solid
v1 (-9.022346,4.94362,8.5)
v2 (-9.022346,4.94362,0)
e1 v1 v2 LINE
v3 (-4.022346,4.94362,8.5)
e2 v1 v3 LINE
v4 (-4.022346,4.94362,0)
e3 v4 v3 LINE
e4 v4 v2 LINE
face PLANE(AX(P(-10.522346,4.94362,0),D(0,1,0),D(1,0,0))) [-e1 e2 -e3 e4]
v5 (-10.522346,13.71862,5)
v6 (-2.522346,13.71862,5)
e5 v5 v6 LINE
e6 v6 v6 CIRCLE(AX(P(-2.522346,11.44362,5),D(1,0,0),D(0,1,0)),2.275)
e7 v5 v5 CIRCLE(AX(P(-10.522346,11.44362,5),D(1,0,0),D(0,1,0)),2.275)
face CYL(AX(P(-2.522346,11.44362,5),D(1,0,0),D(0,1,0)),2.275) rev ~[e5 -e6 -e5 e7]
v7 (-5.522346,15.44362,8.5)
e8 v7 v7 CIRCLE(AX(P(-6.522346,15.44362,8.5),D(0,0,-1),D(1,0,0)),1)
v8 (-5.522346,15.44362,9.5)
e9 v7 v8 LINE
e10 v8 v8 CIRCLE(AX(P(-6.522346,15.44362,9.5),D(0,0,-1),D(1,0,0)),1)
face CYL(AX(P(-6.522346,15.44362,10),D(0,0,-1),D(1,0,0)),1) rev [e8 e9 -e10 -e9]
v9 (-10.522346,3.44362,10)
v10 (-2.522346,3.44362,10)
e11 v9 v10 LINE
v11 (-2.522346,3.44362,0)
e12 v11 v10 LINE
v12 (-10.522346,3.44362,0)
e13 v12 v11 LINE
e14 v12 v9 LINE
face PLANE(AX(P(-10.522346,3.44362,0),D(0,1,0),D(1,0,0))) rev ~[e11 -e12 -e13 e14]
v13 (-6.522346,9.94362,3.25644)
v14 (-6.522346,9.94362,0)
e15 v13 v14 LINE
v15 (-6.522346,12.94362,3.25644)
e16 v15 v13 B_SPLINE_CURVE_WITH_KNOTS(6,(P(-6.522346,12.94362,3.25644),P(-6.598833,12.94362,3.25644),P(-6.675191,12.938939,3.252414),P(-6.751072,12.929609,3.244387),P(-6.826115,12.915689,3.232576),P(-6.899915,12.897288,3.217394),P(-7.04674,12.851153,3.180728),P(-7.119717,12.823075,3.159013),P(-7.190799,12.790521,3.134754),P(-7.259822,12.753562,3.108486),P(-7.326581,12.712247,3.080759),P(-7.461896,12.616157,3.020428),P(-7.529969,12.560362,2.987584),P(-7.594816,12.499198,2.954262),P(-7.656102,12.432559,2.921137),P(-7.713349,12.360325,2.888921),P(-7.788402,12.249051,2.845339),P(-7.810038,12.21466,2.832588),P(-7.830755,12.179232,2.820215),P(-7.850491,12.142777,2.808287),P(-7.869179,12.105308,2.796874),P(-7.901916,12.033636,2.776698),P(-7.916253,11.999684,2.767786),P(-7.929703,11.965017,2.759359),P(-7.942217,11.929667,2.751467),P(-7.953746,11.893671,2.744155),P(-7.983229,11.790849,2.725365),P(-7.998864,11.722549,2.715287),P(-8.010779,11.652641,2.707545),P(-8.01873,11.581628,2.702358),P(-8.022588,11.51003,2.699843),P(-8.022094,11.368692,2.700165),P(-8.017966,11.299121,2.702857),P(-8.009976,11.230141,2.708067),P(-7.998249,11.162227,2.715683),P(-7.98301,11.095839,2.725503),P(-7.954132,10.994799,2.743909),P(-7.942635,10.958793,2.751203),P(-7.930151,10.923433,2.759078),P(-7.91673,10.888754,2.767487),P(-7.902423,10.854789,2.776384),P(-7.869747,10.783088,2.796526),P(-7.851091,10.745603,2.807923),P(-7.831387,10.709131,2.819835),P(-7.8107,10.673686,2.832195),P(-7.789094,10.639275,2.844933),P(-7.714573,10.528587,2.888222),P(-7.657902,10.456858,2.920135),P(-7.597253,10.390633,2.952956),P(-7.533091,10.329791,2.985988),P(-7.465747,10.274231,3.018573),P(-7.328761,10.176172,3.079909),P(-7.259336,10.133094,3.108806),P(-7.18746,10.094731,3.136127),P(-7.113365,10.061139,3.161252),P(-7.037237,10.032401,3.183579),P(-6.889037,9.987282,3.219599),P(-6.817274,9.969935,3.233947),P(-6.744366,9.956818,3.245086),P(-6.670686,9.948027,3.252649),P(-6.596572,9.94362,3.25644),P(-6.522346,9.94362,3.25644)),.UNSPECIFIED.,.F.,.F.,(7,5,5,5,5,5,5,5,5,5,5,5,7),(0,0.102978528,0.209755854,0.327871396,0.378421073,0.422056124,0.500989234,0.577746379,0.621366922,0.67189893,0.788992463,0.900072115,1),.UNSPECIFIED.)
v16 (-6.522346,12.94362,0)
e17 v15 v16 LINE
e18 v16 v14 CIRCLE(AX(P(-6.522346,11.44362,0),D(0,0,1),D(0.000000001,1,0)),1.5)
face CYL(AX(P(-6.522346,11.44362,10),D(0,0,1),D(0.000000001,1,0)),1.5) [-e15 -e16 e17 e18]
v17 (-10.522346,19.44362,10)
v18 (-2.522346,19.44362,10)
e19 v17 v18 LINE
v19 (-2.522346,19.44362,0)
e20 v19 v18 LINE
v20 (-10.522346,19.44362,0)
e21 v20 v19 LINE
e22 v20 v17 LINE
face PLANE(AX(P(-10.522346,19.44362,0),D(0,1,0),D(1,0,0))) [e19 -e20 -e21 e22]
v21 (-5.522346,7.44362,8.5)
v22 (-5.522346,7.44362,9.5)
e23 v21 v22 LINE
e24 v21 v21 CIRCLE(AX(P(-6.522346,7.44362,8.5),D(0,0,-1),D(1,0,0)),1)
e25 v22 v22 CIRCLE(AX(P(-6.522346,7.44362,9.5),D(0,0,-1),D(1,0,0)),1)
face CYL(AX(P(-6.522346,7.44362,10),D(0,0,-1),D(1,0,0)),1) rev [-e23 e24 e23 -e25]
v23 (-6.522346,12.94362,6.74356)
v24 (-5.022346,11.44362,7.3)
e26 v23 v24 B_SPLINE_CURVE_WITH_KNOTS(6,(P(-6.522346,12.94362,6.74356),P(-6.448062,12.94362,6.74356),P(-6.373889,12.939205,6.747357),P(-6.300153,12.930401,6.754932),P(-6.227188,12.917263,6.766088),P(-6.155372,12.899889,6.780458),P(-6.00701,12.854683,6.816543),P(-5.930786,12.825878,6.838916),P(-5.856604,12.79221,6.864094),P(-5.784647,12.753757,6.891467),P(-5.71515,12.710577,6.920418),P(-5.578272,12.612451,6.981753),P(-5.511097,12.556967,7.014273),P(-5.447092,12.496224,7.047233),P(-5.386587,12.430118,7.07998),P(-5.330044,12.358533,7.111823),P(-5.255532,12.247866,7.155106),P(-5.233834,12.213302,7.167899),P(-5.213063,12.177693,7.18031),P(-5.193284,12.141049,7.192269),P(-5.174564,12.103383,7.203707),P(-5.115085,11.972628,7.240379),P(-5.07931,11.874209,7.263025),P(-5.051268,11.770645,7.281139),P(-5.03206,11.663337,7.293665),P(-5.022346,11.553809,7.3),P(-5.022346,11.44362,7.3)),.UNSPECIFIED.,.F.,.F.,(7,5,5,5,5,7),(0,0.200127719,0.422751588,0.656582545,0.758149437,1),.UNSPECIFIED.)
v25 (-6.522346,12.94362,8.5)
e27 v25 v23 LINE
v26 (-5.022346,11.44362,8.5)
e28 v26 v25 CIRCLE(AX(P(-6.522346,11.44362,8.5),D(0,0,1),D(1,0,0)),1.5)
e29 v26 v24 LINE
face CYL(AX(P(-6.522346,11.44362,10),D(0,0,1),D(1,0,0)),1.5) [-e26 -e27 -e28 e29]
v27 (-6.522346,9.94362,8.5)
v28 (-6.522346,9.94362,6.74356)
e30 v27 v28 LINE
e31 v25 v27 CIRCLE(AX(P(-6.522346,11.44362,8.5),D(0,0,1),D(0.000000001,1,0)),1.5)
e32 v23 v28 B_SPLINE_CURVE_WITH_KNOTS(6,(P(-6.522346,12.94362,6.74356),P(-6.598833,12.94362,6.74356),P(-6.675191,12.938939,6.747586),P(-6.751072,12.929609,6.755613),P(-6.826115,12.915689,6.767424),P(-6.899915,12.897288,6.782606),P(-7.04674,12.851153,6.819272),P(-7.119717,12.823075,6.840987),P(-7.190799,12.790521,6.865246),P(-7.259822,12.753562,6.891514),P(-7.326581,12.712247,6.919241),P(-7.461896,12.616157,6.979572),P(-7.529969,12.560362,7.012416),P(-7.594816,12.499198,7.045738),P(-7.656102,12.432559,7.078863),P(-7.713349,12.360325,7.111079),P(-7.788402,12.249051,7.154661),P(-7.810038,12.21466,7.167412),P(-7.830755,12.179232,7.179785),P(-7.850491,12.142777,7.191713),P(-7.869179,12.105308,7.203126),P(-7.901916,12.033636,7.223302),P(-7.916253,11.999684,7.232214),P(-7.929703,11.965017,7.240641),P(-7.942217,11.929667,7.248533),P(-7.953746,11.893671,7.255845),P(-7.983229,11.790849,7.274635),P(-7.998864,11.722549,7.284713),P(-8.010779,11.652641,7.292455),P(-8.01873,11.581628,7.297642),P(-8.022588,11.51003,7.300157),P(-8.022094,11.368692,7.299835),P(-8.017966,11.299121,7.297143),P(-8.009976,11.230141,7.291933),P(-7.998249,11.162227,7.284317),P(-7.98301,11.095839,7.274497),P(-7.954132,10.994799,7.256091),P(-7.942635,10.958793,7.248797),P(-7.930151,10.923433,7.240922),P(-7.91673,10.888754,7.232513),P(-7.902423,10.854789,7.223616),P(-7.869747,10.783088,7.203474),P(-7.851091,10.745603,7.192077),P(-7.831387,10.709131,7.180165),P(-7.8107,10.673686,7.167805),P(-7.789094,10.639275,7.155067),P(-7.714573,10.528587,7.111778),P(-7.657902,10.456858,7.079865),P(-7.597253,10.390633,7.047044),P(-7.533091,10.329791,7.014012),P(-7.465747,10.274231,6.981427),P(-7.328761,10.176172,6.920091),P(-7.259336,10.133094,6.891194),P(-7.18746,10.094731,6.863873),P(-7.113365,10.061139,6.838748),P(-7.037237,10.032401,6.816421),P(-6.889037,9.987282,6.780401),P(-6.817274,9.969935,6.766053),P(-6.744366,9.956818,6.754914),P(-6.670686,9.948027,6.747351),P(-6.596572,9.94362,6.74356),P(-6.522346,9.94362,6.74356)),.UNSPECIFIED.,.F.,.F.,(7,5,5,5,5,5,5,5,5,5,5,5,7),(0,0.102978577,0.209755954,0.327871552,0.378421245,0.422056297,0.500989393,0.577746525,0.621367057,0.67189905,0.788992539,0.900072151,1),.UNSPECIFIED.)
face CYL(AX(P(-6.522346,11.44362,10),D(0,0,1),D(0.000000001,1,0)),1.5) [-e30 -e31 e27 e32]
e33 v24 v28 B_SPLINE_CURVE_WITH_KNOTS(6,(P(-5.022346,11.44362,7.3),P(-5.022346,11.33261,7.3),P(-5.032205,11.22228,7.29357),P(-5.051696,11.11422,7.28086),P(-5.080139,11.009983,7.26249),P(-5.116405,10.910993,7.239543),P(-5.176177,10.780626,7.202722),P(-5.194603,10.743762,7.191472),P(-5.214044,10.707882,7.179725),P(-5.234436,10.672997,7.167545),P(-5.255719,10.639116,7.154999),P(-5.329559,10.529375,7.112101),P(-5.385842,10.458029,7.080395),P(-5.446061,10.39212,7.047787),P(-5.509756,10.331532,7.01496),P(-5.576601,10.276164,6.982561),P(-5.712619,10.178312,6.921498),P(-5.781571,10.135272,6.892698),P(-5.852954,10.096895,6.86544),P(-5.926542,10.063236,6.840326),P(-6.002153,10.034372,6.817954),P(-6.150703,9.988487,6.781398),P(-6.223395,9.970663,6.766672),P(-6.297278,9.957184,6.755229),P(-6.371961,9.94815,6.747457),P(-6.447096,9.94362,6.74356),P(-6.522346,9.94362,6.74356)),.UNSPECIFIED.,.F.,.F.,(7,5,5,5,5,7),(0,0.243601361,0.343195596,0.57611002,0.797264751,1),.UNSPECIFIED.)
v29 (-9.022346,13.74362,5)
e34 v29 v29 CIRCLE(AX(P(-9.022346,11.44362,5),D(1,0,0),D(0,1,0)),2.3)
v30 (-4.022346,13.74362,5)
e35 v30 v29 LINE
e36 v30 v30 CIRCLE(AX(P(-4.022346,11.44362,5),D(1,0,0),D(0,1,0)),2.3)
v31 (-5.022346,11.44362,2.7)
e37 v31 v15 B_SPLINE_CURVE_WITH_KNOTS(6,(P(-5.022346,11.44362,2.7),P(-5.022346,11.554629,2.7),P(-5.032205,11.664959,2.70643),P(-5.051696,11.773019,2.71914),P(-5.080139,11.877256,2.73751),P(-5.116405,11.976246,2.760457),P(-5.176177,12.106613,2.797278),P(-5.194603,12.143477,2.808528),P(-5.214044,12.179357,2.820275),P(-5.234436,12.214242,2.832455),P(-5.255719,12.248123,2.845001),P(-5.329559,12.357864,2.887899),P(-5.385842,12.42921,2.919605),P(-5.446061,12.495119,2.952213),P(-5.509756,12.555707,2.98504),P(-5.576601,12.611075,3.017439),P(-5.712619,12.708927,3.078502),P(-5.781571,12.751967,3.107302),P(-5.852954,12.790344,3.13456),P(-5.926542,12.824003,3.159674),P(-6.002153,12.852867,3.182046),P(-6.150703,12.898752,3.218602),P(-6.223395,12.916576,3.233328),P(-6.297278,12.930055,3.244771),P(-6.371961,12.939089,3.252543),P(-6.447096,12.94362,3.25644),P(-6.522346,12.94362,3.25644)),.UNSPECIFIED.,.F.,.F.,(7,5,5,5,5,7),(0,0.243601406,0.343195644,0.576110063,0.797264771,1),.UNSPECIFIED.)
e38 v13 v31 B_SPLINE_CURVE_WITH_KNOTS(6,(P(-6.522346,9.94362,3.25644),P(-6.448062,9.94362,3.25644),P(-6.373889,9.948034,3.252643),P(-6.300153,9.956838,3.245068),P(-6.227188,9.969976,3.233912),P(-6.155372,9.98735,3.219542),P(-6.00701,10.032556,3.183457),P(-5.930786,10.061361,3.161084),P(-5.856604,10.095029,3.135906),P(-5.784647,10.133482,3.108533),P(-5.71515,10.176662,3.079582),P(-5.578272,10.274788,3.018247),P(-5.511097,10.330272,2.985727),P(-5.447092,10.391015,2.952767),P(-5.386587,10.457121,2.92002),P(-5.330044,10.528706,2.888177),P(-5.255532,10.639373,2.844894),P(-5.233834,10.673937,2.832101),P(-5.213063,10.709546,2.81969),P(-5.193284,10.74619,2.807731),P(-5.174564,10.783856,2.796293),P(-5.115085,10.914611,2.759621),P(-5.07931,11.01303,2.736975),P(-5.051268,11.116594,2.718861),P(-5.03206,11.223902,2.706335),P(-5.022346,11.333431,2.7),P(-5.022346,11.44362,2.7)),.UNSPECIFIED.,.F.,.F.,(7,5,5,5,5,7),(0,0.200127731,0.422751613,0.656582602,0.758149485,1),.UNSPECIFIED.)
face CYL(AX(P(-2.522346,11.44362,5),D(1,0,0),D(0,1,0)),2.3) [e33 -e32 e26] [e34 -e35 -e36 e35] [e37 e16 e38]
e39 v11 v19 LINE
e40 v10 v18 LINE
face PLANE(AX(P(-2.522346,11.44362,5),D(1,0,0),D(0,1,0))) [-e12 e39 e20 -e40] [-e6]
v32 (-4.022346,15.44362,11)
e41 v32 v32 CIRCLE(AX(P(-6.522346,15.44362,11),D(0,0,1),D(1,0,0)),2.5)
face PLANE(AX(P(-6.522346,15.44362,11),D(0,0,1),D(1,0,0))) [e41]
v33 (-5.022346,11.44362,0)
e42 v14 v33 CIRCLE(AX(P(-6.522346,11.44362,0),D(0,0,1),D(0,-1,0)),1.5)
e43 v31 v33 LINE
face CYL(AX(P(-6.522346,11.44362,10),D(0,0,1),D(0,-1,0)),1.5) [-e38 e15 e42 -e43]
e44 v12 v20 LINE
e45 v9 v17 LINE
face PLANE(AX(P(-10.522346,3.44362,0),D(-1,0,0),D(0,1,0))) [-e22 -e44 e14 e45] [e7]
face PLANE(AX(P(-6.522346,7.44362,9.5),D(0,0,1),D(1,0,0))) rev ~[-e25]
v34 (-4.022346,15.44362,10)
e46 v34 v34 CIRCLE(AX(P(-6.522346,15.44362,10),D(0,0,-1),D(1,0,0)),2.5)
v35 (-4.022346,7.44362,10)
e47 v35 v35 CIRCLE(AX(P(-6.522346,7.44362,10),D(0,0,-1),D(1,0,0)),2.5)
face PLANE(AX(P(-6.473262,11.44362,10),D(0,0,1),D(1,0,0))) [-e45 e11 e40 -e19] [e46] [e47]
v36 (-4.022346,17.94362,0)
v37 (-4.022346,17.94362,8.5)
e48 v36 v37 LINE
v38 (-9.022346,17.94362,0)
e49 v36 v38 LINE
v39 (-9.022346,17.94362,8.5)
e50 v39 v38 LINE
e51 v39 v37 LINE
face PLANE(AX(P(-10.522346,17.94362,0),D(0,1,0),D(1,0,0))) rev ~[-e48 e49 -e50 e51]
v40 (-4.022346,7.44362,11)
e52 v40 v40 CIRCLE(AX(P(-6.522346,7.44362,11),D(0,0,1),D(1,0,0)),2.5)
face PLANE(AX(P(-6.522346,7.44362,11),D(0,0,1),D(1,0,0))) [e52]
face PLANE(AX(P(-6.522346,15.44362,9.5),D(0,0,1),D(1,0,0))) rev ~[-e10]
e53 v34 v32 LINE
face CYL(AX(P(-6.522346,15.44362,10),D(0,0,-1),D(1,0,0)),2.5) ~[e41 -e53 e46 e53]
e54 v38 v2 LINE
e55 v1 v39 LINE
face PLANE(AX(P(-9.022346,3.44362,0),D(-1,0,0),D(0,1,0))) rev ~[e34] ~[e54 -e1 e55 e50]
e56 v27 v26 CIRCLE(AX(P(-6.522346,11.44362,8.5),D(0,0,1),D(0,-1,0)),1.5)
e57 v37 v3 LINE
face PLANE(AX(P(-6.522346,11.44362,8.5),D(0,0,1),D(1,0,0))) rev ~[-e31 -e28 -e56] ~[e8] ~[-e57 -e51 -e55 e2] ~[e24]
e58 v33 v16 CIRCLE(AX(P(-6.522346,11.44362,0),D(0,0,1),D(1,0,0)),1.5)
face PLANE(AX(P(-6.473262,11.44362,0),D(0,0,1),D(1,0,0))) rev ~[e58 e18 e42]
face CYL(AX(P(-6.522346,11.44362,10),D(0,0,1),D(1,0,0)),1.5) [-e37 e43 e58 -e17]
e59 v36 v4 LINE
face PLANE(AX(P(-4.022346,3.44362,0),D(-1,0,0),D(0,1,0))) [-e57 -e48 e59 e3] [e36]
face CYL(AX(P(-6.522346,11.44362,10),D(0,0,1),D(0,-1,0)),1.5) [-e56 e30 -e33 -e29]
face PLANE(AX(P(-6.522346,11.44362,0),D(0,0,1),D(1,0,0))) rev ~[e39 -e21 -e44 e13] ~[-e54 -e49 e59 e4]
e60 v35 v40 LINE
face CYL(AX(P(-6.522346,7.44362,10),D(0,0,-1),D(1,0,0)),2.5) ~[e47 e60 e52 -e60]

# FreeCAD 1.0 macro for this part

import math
import FreeCAD as App
import Part
import Sketcher

V = App.Vector
Q = App.Units.Quantity


def faces_at(feature, points):
    """Names of the faces that lie closest to the given points."""
    faces = feature.Shape.Faces
    near = lambda p: min(range(len(faces)), key=lambda i: faces[i].distToShape(Part.Vertex(*p))[0])
    return sorted({f"Face{near(p) + 1}" for p in points})


def add_polygon(sketch, points):
    """Adds a closed chain of lines whose ends are joined by coincident constraints."""
    first, n = sketch.GeometryCount, len(points)
    for a, b in zip(points, points[1:] + points[:1]):
        sketch.addGeometry(Part.LineSegment(App.Vector(*a, 0), App.Vector(*b, 0)), False)
    for i in range(n):
        sketch.addConstraint(Sketcher.Constraint("Coincident", first + i, 2, first + (i + 1) % n, 1))

doc = App.newDocument("Part")
body = doc.addObject("PartDesign::Body", "Body")

# Sketch on XY plane
sketch1 = doc.addObject("Sketcher::SketchObject", "Sketch")
body.addObject(sketch1)
sketch1.AttachmentSupport = (doc.XY_Plane, [""])
sketch1.MapMode = "FlatFace"
add_polygon(sketch1, [(-11, 19), (-11, 3), (-3, 3), (-3, 19)])  # lines 0-3
sketch1.addConstraint(Sketcher.Constraint("Vertical", 0))
sketch1.addConstraint(Sketcher.Constraint("Horizontal", 1))
sketch1.addConstraint(Sketcher.Constraint("Vertical", 2))
sketch1.addConstraint(Sketcher.Constraint("Horizontal", 3))
sketch1.addConstraint(Sketcher.Constraint("DistanceX", 1, 1, 1, 2, Q("8 mm")))
sketch1.addConstraint(Sketcher.Constraint("DistanceY", 0, 2, 0, 1, Q("16 mm")))
sketch1.addConstraint(Sketcher.Constraint("DistanceY", -1, 1, 0, 2, Q("3.44362 mm")))
sketch1.addConstraint(Sketcher.Constraint("DistanceX", 0, 2, -1, 1, Q("10.522346 mm")))
pad1 = doc.addObject("PartDesign::Pad", "Pad")
body.addObject(pad1)
pad1.Profile = sketch1
pad1.Length = 10

# Sketch on XY plane
sketch2 = doc.addObject("Sketcher::SketchObject", "Sketch001")
body.addObject(sketch2)
sketch2.AttachmentSupport = (doc.XY_Plane, [""])
sketch2.MapMode = "FlatFace"
sketch2.AttachmentOffset = App.Placement(V(0, 0, 10), App.Rotation())
sketch2.addGeometry(Part.Circle(V(-6.5, 7.4, 0), V(0, 0, 1), 2.5), False)
sketch2.addGeometry(Part.Circle(V(-6.5, 15.4, 0), V(0, 0, 1), 2.5), False)
sketch2.addConstraint(Sketcher.Constraint("Equal", 0, 1))
sketch2.addConstraint(Sketcher.Constraint("Vertical", 0, 3, 1, 3))
sketch2.addConstraint(Sketcher.Constraint("Diameter", 0, Q("5 mm")))
sketch2.addConstraint(Sketcher.Constraint("DistanceY", 0, 3, 1, 3, Q("8 mm")))
sketch2.addConstraint(Sketcher.Constraint("DistanceY", -1, 1, 0, 3, Q("7.44362 mm")))
sketch2.addConstraint(Sketcher.Constraint("DistanceX", 0, 3, -1, 1, Q("6.522346 mm")))
pad2 = doc.addObject("PartDesign::Pad", "Pad001")
body.addObject(pad2)
pad2.Profile = sketch2
pad2.Length = 1
doc.recompute()

thickness = doc.addObject("PartDesign::Thickness", "Thickness")
body.addObject(thickness)
thickness.Base = (pad2, faces_at(pad2, [(-6.522, 11.444, 0)]))
thickness.Value = 1.5
thickness.Reversed = True
thickness.Join = "Intersection"

# Sketch on XY plane
sketch3 = doc.addObject("Sketcher::SketchObject", "Sketch002")
body.addObject(sketch3)
sketch3.AttachmentSupport = (doc.XY_Plane, [""])
sketch3.MapMode = "FlatFace"
sketch3.AttachmentOffset = App.Placement(V(0, 0, 10), App.Rotation())
sketch3.addGeometry(Part.ArcOfCircle(Part.Circle(V(-6.5, 11.4, 0), V(0, 0, 1), 1.5), math.radians(-90), math.radians(0)), False)
sketch3.addGeometry(Part.ArcOfCircle(Part.Circle(V(-6.5, 11.4, 0), V(0, 0, 1), 1.5), math.radians(0), math.radians(90)), False)
sketch3.addGeometry(Part.ArcOfCircle(Part.Circle(V(-6.5, 11.4, 0), V(0, 0, 1), 1.5), math.radians(90), math.radians(270)), False)
sketch3.addConstraint(Sketcher.Constraint("Tangent", 0, 2, 1, 1))
sketch3.addConstraint(Sketcher.Constraint("Tangent", 1, 2, 2, 1))
sketch3.addConstraint(Sketcher.Constraint("Tangent", 2, 2, 0, 1))
sketch3.addConstraint(Sketcher.Constraint("Horizontal", 2, 3, 0, 2))
sketch3.addConstraint(Sketcher.Constraint("Vertical", 2, 3, 1, 2))
sketch3.addConstraint(Sketcher.Constraint("Vertical", 1, 2, 2, 2))
sketch3.addConstraint(Sketcher.Constraint("Radius", 0, Q("1.5 mm")))
sketch3.addConstraint(Sketcher.Constraint("DistanceY", -1, 1, 0, 3, Q("11.44362 mm")))
sketch3.addConstraint(Sketcher.Constraint("DistanceX", 0, 3, -1, 1, Q("6.522346 mm")))
pad3 = doc.addObject("PartDesign::Pad", "Pad002")
body.addObject(pad3)
pad3.Profile = sketch3
pad3.Length = 10
pad3.Reversed = True

# Sketch on YZ plane
sketch4 = doc.addObject("Sketcher::SketchObject", "Sketch003")
body.addObject(sketch4)
sketch4.AttachmentSupport = (doc.YZ_Plane, [""])
sketch4.MapMode = "FlatFace"
sketch4.AttachmentOffset = App.Placement(V(0, 0, -2.522346), App.Rotation())
sketch4.addGeometry(Part.Circle(V(11.4, 5, 0), V(0, 0, 1), 2.3), False)
sketch4.addGeometry(Part.Circle(V(11.4, 5, 0), V(0, 0, 1), 2.3), False)
sketch4.addConstraint(Sketcher.Constraint("Coincident", 1, 3, 0, 3))
sketch4.addConstraint(Sketcher.Constraint("Diameter", 0, Q("4.6 mm")))
sketch4.addConstraint(Sketcher.Constraint("Diameter", 1, Q("4.55 mm")))
sketch4.addConstraint(Sketcher.Constraint("DistanceY", -1, 1, 0, 3, Q("5 mm")))
sketch4.addConstraint(Sketcher.Constraint("DistanceX", -1, 1, 0, 3, Q("11.44362 mm")))
pad4 = doc.addObject("PartDesign::Pad", "Pad003")
body.addObject(pad4)
pad4.Profile = sketch4
pad4.Length = 8
pad4.Reversed = True

# Sketch on YZ plane
sketch5 = doc.addObject("Sketcher::SketchObject", "Sketch004")
body.addObject(sketch5)
sketch5.AttachmentSupport = (doc.YZ_Plane, [""])
sketch5.MapMode = "FlatFace"
sketch5.AttachmentOffset = App.Placement(V(0, 0, -2.522346), App.Rotation())
sketch5.addGeometry(Part.Circle(V(11.4, 5, 0), V(0, 0, 1), 2.3), False)
sketch5.addConstraint(Sketcher.Constraint("Diameter", 0, Q("4.55 mm")))
sketch5.addConstraint(Sketcher.Constraint("DistanceY", -1, 1, 0, 3, Q("5 mm")))
sketch5.addConstraint(Sketcher.Constraint("DistanceX", -1, 1, 0, 3, Q("11.44362 mm")))
pocket1 = doc.addObject("PartDesign::Pocket", "Pocket")
body.addObject(pocket1)
pocket1.Profile = sketch5
pocket1.Length = 8

doc.recompute()
